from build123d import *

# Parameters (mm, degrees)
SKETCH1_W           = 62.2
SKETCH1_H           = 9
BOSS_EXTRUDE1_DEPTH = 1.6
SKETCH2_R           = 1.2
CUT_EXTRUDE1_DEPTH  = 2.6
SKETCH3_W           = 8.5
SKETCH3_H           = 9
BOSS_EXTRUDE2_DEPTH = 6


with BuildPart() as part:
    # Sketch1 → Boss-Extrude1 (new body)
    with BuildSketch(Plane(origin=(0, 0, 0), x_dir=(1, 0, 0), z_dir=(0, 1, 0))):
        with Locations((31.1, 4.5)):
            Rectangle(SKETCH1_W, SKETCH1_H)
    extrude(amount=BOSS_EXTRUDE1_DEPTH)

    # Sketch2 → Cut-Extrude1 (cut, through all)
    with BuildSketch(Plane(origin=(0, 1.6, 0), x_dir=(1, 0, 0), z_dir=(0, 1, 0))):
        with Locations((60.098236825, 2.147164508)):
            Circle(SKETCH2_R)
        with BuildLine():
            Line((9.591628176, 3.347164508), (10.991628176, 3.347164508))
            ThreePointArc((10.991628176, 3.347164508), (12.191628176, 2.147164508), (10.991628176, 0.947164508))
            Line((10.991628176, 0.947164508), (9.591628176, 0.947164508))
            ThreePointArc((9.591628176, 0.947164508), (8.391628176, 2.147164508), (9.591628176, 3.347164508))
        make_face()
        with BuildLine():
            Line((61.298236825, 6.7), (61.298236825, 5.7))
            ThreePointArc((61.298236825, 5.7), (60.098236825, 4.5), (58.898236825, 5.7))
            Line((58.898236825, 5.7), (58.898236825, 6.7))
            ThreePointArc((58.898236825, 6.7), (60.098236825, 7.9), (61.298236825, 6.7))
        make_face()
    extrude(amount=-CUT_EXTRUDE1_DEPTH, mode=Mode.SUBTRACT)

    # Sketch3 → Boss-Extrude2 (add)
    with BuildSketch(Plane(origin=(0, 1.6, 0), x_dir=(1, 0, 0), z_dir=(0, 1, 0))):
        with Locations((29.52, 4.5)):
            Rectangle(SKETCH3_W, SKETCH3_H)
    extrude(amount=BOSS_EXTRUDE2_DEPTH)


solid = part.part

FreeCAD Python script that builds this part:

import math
import FreeCAD as App
import Part
import Sketcher


def add_polygon(sketch, points):
    """Adds a closed chain of lines whose ends are joined by coincident constraints."""
    first, n = sketch.GeometryCount, len(points)
    for a, b in zip(points, points[1:] + points[:1]):
        sketch.addGeometry(Part.LineSegment(App.Vector(*a, 0), App.Vector(*b, 0)), False)
    for i in range(n):
        sketch.addConstraint(Sketcher.Constraint("Coincident", first + i, 2, first + (i + 1) % n, 1))

doc = App.newDocument("Part")
body = doc.addObject("PartDesign::Body", "Body")

# Sketch on XZ plane
sketch1 = body.newObject("Sketcher::SketchObject", "Sketch")
sketch1.AttachmentSupport = (doc.getObject("XZ_Plane"), [""])
sketch1.MapMode = "FlatFace"
add_polygon(sketch1, [(0, -9), (0, 0), (62, 0), (62, -9)])  # lines 0-3
sketch1.addConstraint([
    Sketcher.Constraint("Vertical", 0),
    Sketcher.Constraint("Horizontal", 1),
    Sketcher.Constraint("Vertical", 2),
    Sketcher.Constraint("Horizontal", 3),
    Sketcher.Constraint("Coincident", 0, 2, -1, 1),
    Sketcher.Constraint("DistanceY", 0, 1, 0, 2, 9.0),
    Sketcher.Constraint("DistanceX", 1, 1, 1, 2, 62.2),
])
pad1 = body.newObject("PartDesign::Pad", "Pad")
pad1.Profile = sketch1
pad1.Length = 1.6
pad1.Reversed = True

# Sketch on XZ plane
sketch2 = body.newObject("Sketcher::SketchObject", "Sketch001")
sketch2.AttachmentSupport = (doc.getObject("XZ_Plane"), [""])
sketch2.MapMode = "FlatFace"
sketch2.AttachmentOffset = App.Placement(App.Vector(0, 0, -1.6), App.Rotation())
sketch2.addGeometry([
    Part.Circle(App.Vector(60.1, -2.1, 0), App.Vector(0, 0, 1), 1.2),  # 0
    Part.LineSegment(App.Vector(11, -3.3, 0), App.Vector(9.6, -3.3, 0)),  # 1
    Part.ArcOfCircle(Part.Circle(App.Vector(9.6, -2.1, 0), App.Vector(0, 0, 1), 1.2), math.radians(90), math.radians(270)),  # 2
    Part.LineSegment(App.Vector(9.6, -0.9, 0), App.Vector(11, -0.9, 0)),  # 3
    Part.ArcOfCircle(Part.Circle(App.Vector(11, -2.1, 0), App.Vector(0, 0, 1), 1.2), math.radians(-90), math.radians(90)),  # 4
    Part.LineSegment(App.Vector(61.3, -5.7, 0), App.Vector(61.3, -6.7, 0)),  # 5
    Part.ArcOfCircle(Part.Circle(App.Vector(60.1, -6.7, 0), App.Vector(0, 0, 1), 1.2), math.radians(180), math.radians(360)),  # 6
    Part.LineSegment(App.Vector(58.9, -6.7, 0), App.Vector(58.9, -5.7, 0)),  # 7
    Part.ArcOfCircle(Part.Circle(App.Vector(60.1, -5.7, 0), App.Vector(0, 0, 1), 1.2), math.radians(0), math.radians(180)),  # 8
], False)
sketch2.addConstraint([
    Sketcher.Constraint("Tangent", 1, 2, 2, 2),
    Sketcher.Constraint("Tangent", 2, 1, 3, 1),
    Sketcher.Constraint("Tangent", 3, 2, 4, 2),
    Sketcher.Constraint("Tangent", 4, 1, 1, 1),
    Sketcher.Constraint("Tangent", 5, 2, 6, 2),
    Sketcher.Constraint("Tangent", 6, 1, 7, 1),
    Sketcher.Constraint("Tangent", 7, 2, 8, 2),
    Sketcher.Constraint("Tangent", 8, 1, 5, 1),
    Sketcher.Constraint("Horizontal", 1),
    Sketcher.Constraint("Horizontal", 3),
    Sketcher.Constraint("Vertical", 5),
    Sketcher.Constraint("Vertical", 7),
    Sketcher.Constraint("Equal", 0, 2),
    Sketcher.Constraint("Equal", 4, 6),
    Sketcher.Constraint("Horizontal", 0, 3, 2, 3),
    Sketcher.Constraint("Vertical", 0, 3, 6, 3),
    Sketcher.Constraint("Diameter", 0, 2.4),
    Sketcher.Constraint("DistanceY", 5, 2, 5, 1, 1.0),
    Sketcher.Constraint("DistanceX", 1, 2, 1, 1, 1.4),
    Sketcher.Constraint("DistanceY", 6, 3, -1, 1, 6.7),
    Sketcher.Constraint("DistanceX", -1, 1, 2, 3, 9.591628),
    Sketcher.Constraint("DistanceX", 2, 3, 0, 3, 50.506609),
    Sketcher.Constraint("DistanceY", 0, 3, -1, 1, 2.147165),
])
pocket1 = body.newObject("PartDesign::Pocket", "Pocket")
pocket1.Profile = sketch2
pocket1.Type = "ThroughAll"
pocket1.Reversed = True

# Sketch on XZ plane
sketch3 = body.newObject("Sketcher::SketchObject", "Sketch002")
sketch3.AttachmentSupport = (doc.getObject("XZ_Plane"), [""])
sketch3.MapMode = "FlatFace"
sketch3.AttachmentOffset = App.Placement(App.Vector(0, 0, -1.6), App.Rotation())
add_polygon(sketch3, [(25, -9), (25, 0), (34, 0), (34, -9)])  # lines 0-3
sketch3.addConstraint([
    Sketcher.Constraint("Vertical", 0),
    Sketcher.Constraint("Horizontal", 1),
    Sketcher.Constraint("Vertical", 2),
    Sketcher.Constraint("Horizontal", 3),
    Sketcher.Constraint("PointOnObject", 0, 2, -1),
    Sketcher.Constraint("DistanceY", 0, 1, 0, 2, 9.0),
    Sketcher.Constraint("DistanceX", 1, 1, 1, 2, 8.5),
    Sketcher.Constraint("DistanceX", -1, 1, 0, 2, 25.27),
])
pad2 = body.newObject("PartDesign::Pad", "Pad001")
pad2.Profile = sketch3
pad2.Length = 6
pad2.Reversed = True

doc.recompute()
